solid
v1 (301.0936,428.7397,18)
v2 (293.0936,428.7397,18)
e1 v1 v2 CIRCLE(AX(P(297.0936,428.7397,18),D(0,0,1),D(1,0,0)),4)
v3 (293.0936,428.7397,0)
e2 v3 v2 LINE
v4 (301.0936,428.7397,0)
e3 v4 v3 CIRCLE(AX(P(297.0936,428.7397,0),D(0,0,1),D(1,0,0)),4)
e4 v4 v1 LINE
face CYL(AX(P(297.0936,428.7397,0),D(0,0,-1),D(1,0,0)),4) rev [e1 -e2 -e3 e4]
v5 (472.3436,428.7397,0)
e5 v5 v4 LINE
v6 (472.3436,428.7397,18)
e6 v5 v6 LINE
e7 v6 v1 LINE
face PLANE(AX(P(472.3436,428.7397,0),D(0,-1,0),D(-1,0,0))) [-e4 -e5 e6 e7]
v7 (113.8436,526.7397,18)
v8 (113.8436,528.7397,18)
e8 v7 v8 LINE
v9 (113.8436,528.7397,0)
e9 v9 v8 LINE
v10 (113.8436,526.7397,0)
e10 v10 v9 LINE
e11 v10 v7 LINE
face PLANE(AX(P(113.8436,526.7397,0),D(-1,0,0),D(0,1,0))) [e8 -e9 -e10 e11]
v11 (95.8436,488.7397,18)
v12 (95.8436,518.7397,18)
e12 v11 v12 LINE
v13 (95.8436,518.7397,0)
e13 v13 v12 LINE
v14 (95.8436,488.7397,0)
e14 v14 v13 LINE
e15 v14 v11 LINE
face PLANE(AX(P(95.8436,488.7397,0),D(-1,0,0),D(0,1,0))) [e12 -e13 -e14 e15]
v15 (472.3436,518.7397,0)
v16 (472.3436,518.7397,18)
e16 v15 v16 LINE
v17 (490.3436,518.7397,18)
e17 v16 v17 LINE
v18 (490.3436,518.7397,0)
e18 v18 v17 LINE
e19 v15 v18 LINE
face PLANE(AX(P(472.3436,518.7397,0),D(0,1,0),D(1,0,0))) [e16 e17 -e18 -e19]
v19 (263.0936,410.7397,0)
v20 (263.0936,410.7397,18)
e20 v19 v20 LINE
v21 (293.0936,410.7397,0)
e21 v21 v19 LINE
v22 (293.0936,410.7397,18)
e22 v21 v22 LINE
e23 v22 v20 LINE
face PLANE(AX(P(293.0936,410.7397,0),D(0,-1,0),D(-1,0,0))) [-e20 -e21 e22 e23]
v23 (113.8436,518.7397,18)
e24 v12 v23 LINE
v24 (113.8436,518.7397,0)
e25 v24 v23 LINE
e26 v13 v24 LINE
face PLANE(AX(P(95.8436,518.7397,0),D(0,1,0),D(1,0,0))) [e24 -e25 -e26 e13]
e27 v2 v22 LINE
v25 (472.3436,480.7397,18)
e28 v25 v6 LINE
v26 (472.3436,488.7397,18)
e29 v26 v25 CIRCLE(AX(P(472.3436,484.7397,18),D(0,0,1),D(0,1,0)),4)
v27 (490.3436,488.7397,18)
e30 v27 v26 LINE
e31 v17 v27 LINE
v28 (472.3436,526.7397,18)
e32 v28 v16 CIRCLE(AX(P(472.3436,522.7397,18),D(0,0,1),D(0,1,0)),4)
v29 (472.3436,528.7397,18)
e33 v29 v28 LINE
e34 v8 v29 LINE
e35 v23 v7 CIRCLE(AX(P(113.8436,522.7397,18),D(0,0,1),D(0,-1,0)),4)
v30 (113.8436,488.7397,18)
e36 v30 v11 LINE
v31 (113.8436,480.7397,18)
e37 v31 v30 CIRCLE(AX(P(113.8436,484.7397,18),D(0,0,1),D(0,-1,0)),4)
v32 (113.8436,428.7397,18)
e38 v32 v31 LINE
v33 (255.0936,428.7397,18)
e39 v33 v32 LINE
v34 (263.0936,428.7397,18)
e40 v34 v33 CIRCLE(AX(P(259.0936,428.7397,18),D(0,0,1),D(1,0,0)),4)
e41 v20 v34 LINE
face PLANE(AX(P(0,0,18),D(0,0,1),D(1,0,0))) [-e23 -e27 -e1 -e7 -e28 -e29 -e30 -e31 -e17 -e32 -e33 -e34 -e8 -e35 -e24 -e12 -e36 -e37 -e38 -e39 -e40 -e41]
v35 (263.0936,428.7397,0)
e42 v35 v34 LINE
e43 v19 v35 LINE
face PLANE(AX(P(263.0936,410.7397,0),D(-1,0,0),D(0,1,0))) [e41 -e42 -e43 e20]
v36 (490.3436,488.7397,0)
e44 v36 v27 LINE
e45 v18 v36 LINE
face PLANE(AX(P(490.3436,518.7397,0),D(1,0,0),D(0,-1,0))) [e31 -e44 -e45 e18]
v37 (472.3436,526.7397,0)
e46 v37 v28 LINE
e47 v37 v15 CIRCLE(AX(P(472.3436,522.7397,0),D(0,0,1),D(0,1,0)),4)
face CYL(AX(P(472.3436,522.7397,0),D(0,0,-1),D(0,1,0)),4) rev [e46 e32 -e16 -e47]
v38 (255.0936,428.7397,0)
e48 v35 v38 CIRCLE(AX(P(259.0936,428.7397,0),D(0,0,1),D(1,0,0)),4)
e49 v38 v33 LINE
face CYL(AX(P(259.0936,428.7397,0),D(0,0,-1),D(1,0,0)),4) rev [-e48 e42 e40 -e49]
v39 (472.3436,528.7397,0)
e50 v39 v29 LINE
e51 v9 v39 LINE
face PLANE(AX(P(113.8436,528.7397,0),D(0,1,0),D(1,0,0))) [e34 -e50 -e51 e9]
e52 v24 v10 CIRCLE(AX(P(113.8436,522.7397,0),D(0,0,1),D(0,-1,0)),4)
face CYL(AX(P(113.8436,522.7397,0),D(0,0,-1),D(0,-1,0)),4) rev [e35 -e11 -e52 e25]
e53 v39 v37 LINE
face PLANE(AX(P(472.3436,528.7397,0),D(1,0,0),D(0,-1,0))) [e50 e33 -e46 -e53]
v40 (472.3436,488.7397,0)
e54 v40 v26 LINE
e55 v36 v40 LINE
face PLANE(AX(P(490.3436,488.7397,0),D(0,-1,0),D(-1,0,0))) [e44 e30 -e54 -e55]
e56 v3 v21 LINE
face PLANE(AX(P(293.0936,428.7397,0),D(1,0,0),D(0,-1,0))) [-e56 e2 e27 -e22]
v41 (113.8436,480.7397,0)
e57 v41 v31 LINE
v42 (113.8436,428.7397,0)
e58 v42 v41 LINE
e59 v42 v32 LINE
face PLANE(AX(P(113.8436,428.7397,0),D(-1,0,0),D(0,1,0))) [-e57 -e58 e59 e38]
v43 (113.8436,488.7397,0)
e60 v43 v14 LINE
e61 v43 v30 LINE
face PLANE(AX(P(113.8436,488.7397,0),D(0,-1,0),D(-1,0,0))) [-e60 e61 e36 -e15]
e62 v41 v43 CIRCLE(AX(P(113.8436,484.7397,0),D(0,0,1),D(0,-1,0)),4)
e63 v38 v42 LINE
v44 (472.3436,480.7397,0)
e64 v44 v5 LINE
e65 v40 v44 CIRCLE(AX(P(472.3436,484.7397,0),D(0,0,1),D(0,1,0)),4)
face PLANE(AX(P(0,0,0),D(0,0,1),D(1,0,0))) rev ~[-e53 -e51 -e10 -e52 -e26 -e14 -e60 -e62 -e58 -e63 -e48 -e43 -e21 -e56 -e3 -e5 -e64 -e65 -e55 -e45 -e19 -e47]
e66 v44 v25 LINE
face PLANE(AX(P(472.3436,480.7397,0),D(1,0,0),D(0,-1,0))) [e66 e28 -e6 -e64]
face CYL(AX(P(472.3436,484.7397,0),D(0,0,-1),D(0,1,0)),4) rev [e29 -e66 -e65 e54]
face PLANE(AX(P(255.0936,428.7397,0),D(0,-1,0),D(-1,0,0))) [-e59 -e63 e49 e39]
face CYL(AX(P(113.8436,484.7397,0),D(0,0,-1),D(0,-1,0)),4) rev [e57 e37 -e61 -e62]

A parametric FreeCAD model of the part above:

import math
import FreeCAD as App
import Part
import Sketcher
from FreeCAD import Vector
Q = App.Units.Quantity

doc = App.newDocument("Part")
body = doc.addObject("PartDesign::Body", "Body")

sketch1 = body.newObject("Sketcher::SketchObject", "Sketch")
sketch1.AttachmentSupport = (doc.getObject("XY_Plane"), [""])
sketch1.MapMode = "FlatFace"
sketch1.addGeometry([
    Part.ArcOfCircle(Part.Circle(Vector(113.8, 522.7, 0), Vector(0, 0, 1), 4), math.radians(-90), math.radians(90)),
    Part.LineSegment(Vector(113.8, 518.7, 0), Vector(95.8, 518.7, 0)),
    Part.LineSegment(Vector(95.8, 518.7, 0), Vector(95.8, 488.7, 0)),
    Part.LineSegment(Vector(95.8, 488.7, 0), Vector(113.8, 488.7, 0)),
    Part.ArcOfCircle(Part.Circle(Vector(113.8, 484.7, 0), Vector(0, 0, 1), 4), math.radians(-90), math.radians(90)),
    Part.LineSegment(Vector(113.8, 480.7, 0), Vector(113.8, 428.7, 0)),
    Part.LineSegment(Vector(113.8, 428.7, 0), Vector(255.1, 428.7, 0)),
    Part.ArcOfCircle(Part.Circle(Vector(259.1, 428.7, 0), Vector(0, 0, 1), 4), math.radians(0), math.radians(180)),
    Part.LineSegment(Vector(263.1, 428.7, 0), Vector(263.1, 410.7, 0)),
    Part.LineSegment(Vector(263.1, 410.7, 0), Vector(293.1, 410.7, 0)),
    Part.LineSegment(Vector(293.1, 410.7, 0), Vector(293.1, 428.7, 0)),
    Part.ArcOfCircle(Part.Circle(Vector(297.1, 428.7, 0), Vector(0, 0, 1), 4), math.radians(0), math.radians(180)),
    Part.LineSegment(Vector(301.1, 428.7, 0), Vector(472.3, 428.7, 0)),
    Part.LineSegment(Vector(472.3, 428.7, 0), Vector(472.3, 480.7, 0)),
    Part.ArcOfCircle(Part.Circle(Vector(472.3, 484.7, 0), Vector(0, 0, 1), 4), math.radians(90), math.radians(270)),
    Part.LineSegment(Vector(472.3, 488.7, 0), Vector(490.3, 488.7, 0)),
    Part.LineSegment(Vector(490.3, 488.7, 0), Vector(490.3, 518.7, 0)),
    Part.LineSegment(Vector(490.3, 518.7, 0), Vector(472.3, 518.7, 0)),
    Part.ArcOfCircle(Part.Circle(Vector(472.3, 522.7, 0), Vector(0, 0, 1), 4), math.radians(90), math.radians(270)),
    Part.LineSegment(Vector(472.3, 526.7, 0), Vector(472.3, 528.7, 0)),
    Part.LineSegment(Vector(472.3, 528.7, 0), Vector(113.8, 528.7, 0)),
    Part.LineSegment(Vector(113.8, 528.7, 0), Vector(113.8, 526.7, 0)),
], False)
sketch1.addConstraint([
    Sketcher.Constraint("Tangent", 0, 1, 1, 1),
    Sketcher.Constraint("Coincident", 1, 2, 2, 1),
    Sketcher.Constraint("Coincident", 2, 2, 3, 1),
    Sketcher.Constraint("Tangent", 3, 2, 4, 2),
    Sketcher.Constraint("Coincident", 4, 1, 5, 1),
    Sketcher.Constraint("Coincident", 5, 2, 6, 1),
    Sketcher.Constraint("Coincident", 6, 2, 7, 2),
    Sketcher.Constraint("Tangent", 7, 1, 8, 1),
    Sketcher.Constraint("Coincident", 8, 2, 9, 1),
    Sketcher.Constraint("Coincident", 9, 2, 10, 1),
    Sketcher.Constraint("Tangent", 10, 2, 11, 2),
    Sketcher.Constraint("Coincident", 11, 1, 12, 1),
    Sketcher.Constraint("Coincident", 12, 2, 13, 1),
    Sketcher.Constraint("Coincident", 13, 2, 14, 2),
    Sketcher.Constraint("Tangent", 14, 1, 15, 1),
    Sketcher.Constraint("Coincident", 15, 2, 16, 1),
    Sketcher.Constraint("Coincident", 16, 2, 17, 1),
    Sketcher.Constraint("Tangent", 17, 2, 18, 2),
    Sketcher.Constraint("Coincident", 18, 1, 19, 1),
    Sketcher.Constraint("Coincident", 19, 2, 20, 1),
    Sketcher.Constraint("Coincident", 20, 2, 21, 1),
    Sketcher.Constraint("Coincident", 21, 2, 0, 2),
    Sketcher.Constraint("Horizontal", 1),
    Sketcher.Constraint("Vertical", 2),
    Sketcher.Constraint("Horizontal", 3),
    Sketcher.Constraint("Vertical", 5),
    Sketcher.Constraint("Horizontal", 6),
    Sketcher.Constraint("Vertical", 8),
    Sketcher.Constraint("Horizontal", 9),
    Sketcher.Constraint("Vertical", 10),
    Sketcher.Constraint("Horizontal", 12),
    Sketcher.Constraint("Vertical", 13),
    Sketcher.Constraint("Horizontal", 15),
    Sketcher.Constraint("Vertical", 16),
    Sketcher.Constraint("Horizontal", 17),
    Sketcher.Constraint("Vertical", 19),
    Sketcher.Constraint("Horizontal", 20),
    Sketcher.Constraint("Vertical", 21),
    Sketcher.Constraint("Equal", 0, 4),
    Sketcher.Constraint("Equal", 4, 7),
    Sketcher.Constraint("Equal", 7, 11),
    Sketcher.Constraint("Equal", 11, 14),
    Sketcher.Constraint("Equal", 14, 18),
    Sketcher.Constraint("Horizontal", 7, 3, 11, 3),
    Sketcher.Constraint("Horizontal", 4, 3, 14, 3),
    Sketcher.Constraint("Horizontal", 0, 3, 18, 3),
    Sketcher.Constraint("Horizontal", 11, 3, 5, 2),
    Sketcher.Constraint("Horizontal", 10, 2, 11, 1),
    Sketcher.Constraint("Vertical", 0, 3, 4, 3),
    Sketcher.Constraint("Vertical", 14, 3, 18, 3),
    Sketcher.Constraint("Vertical", 3, 2, 4, 1),
    Sketcher.Constraint("Vertical", 18, 3, 12, 2),
    Sketcher.Constraint("Vertical", 17, 2, 18, 1),
    Sketcher.Constraint("Vertical", 5, 2, 20, 2),
    Sketcher.Constraint("Equal", 3, 15),
    Sketcher.Constraint("Equal", 9, 2),
    Sketcher.Constraint("Equal", 17, 8),
    Sketcher.Constraint("Radius", 0, Q("4 mm")),
    Sketcher.Constraint("DistanceX", 1, 2, 1, 1, Q("18 mm")),
    Sketcher.Constraint("DistanceX", 9, 1, 9, 2, Q("30 mm")),
    Sketcher.Constraint("DistanceY", 5, 2, 5, 1, Q("52 mm")),
    Sketcher.Constraint("DistanceY", 19, 1, 19, 2, Q("2 mm")),
    Sketcher.Constraint("DistanceX", 20, 2, 20, 1, Q("358.5 mm")),
    Sketcher.Constraint("DistanceX", 6, 1, 6, 2, Q("141.25 mm")),
    Sketcher.Constraint("DistanceX", -1, 1, 0, 3, Q("113.8436 mm")),
    Sketcher.Constraint("DistanceY", -1, 1, 0, 3, Q("522.7397 mm")),
])
pad1 = body.newObject("PartDesign::Pad", "Pad")
pad1.Profile = sketch1
pad1.Length = 18

doc.recompute()
